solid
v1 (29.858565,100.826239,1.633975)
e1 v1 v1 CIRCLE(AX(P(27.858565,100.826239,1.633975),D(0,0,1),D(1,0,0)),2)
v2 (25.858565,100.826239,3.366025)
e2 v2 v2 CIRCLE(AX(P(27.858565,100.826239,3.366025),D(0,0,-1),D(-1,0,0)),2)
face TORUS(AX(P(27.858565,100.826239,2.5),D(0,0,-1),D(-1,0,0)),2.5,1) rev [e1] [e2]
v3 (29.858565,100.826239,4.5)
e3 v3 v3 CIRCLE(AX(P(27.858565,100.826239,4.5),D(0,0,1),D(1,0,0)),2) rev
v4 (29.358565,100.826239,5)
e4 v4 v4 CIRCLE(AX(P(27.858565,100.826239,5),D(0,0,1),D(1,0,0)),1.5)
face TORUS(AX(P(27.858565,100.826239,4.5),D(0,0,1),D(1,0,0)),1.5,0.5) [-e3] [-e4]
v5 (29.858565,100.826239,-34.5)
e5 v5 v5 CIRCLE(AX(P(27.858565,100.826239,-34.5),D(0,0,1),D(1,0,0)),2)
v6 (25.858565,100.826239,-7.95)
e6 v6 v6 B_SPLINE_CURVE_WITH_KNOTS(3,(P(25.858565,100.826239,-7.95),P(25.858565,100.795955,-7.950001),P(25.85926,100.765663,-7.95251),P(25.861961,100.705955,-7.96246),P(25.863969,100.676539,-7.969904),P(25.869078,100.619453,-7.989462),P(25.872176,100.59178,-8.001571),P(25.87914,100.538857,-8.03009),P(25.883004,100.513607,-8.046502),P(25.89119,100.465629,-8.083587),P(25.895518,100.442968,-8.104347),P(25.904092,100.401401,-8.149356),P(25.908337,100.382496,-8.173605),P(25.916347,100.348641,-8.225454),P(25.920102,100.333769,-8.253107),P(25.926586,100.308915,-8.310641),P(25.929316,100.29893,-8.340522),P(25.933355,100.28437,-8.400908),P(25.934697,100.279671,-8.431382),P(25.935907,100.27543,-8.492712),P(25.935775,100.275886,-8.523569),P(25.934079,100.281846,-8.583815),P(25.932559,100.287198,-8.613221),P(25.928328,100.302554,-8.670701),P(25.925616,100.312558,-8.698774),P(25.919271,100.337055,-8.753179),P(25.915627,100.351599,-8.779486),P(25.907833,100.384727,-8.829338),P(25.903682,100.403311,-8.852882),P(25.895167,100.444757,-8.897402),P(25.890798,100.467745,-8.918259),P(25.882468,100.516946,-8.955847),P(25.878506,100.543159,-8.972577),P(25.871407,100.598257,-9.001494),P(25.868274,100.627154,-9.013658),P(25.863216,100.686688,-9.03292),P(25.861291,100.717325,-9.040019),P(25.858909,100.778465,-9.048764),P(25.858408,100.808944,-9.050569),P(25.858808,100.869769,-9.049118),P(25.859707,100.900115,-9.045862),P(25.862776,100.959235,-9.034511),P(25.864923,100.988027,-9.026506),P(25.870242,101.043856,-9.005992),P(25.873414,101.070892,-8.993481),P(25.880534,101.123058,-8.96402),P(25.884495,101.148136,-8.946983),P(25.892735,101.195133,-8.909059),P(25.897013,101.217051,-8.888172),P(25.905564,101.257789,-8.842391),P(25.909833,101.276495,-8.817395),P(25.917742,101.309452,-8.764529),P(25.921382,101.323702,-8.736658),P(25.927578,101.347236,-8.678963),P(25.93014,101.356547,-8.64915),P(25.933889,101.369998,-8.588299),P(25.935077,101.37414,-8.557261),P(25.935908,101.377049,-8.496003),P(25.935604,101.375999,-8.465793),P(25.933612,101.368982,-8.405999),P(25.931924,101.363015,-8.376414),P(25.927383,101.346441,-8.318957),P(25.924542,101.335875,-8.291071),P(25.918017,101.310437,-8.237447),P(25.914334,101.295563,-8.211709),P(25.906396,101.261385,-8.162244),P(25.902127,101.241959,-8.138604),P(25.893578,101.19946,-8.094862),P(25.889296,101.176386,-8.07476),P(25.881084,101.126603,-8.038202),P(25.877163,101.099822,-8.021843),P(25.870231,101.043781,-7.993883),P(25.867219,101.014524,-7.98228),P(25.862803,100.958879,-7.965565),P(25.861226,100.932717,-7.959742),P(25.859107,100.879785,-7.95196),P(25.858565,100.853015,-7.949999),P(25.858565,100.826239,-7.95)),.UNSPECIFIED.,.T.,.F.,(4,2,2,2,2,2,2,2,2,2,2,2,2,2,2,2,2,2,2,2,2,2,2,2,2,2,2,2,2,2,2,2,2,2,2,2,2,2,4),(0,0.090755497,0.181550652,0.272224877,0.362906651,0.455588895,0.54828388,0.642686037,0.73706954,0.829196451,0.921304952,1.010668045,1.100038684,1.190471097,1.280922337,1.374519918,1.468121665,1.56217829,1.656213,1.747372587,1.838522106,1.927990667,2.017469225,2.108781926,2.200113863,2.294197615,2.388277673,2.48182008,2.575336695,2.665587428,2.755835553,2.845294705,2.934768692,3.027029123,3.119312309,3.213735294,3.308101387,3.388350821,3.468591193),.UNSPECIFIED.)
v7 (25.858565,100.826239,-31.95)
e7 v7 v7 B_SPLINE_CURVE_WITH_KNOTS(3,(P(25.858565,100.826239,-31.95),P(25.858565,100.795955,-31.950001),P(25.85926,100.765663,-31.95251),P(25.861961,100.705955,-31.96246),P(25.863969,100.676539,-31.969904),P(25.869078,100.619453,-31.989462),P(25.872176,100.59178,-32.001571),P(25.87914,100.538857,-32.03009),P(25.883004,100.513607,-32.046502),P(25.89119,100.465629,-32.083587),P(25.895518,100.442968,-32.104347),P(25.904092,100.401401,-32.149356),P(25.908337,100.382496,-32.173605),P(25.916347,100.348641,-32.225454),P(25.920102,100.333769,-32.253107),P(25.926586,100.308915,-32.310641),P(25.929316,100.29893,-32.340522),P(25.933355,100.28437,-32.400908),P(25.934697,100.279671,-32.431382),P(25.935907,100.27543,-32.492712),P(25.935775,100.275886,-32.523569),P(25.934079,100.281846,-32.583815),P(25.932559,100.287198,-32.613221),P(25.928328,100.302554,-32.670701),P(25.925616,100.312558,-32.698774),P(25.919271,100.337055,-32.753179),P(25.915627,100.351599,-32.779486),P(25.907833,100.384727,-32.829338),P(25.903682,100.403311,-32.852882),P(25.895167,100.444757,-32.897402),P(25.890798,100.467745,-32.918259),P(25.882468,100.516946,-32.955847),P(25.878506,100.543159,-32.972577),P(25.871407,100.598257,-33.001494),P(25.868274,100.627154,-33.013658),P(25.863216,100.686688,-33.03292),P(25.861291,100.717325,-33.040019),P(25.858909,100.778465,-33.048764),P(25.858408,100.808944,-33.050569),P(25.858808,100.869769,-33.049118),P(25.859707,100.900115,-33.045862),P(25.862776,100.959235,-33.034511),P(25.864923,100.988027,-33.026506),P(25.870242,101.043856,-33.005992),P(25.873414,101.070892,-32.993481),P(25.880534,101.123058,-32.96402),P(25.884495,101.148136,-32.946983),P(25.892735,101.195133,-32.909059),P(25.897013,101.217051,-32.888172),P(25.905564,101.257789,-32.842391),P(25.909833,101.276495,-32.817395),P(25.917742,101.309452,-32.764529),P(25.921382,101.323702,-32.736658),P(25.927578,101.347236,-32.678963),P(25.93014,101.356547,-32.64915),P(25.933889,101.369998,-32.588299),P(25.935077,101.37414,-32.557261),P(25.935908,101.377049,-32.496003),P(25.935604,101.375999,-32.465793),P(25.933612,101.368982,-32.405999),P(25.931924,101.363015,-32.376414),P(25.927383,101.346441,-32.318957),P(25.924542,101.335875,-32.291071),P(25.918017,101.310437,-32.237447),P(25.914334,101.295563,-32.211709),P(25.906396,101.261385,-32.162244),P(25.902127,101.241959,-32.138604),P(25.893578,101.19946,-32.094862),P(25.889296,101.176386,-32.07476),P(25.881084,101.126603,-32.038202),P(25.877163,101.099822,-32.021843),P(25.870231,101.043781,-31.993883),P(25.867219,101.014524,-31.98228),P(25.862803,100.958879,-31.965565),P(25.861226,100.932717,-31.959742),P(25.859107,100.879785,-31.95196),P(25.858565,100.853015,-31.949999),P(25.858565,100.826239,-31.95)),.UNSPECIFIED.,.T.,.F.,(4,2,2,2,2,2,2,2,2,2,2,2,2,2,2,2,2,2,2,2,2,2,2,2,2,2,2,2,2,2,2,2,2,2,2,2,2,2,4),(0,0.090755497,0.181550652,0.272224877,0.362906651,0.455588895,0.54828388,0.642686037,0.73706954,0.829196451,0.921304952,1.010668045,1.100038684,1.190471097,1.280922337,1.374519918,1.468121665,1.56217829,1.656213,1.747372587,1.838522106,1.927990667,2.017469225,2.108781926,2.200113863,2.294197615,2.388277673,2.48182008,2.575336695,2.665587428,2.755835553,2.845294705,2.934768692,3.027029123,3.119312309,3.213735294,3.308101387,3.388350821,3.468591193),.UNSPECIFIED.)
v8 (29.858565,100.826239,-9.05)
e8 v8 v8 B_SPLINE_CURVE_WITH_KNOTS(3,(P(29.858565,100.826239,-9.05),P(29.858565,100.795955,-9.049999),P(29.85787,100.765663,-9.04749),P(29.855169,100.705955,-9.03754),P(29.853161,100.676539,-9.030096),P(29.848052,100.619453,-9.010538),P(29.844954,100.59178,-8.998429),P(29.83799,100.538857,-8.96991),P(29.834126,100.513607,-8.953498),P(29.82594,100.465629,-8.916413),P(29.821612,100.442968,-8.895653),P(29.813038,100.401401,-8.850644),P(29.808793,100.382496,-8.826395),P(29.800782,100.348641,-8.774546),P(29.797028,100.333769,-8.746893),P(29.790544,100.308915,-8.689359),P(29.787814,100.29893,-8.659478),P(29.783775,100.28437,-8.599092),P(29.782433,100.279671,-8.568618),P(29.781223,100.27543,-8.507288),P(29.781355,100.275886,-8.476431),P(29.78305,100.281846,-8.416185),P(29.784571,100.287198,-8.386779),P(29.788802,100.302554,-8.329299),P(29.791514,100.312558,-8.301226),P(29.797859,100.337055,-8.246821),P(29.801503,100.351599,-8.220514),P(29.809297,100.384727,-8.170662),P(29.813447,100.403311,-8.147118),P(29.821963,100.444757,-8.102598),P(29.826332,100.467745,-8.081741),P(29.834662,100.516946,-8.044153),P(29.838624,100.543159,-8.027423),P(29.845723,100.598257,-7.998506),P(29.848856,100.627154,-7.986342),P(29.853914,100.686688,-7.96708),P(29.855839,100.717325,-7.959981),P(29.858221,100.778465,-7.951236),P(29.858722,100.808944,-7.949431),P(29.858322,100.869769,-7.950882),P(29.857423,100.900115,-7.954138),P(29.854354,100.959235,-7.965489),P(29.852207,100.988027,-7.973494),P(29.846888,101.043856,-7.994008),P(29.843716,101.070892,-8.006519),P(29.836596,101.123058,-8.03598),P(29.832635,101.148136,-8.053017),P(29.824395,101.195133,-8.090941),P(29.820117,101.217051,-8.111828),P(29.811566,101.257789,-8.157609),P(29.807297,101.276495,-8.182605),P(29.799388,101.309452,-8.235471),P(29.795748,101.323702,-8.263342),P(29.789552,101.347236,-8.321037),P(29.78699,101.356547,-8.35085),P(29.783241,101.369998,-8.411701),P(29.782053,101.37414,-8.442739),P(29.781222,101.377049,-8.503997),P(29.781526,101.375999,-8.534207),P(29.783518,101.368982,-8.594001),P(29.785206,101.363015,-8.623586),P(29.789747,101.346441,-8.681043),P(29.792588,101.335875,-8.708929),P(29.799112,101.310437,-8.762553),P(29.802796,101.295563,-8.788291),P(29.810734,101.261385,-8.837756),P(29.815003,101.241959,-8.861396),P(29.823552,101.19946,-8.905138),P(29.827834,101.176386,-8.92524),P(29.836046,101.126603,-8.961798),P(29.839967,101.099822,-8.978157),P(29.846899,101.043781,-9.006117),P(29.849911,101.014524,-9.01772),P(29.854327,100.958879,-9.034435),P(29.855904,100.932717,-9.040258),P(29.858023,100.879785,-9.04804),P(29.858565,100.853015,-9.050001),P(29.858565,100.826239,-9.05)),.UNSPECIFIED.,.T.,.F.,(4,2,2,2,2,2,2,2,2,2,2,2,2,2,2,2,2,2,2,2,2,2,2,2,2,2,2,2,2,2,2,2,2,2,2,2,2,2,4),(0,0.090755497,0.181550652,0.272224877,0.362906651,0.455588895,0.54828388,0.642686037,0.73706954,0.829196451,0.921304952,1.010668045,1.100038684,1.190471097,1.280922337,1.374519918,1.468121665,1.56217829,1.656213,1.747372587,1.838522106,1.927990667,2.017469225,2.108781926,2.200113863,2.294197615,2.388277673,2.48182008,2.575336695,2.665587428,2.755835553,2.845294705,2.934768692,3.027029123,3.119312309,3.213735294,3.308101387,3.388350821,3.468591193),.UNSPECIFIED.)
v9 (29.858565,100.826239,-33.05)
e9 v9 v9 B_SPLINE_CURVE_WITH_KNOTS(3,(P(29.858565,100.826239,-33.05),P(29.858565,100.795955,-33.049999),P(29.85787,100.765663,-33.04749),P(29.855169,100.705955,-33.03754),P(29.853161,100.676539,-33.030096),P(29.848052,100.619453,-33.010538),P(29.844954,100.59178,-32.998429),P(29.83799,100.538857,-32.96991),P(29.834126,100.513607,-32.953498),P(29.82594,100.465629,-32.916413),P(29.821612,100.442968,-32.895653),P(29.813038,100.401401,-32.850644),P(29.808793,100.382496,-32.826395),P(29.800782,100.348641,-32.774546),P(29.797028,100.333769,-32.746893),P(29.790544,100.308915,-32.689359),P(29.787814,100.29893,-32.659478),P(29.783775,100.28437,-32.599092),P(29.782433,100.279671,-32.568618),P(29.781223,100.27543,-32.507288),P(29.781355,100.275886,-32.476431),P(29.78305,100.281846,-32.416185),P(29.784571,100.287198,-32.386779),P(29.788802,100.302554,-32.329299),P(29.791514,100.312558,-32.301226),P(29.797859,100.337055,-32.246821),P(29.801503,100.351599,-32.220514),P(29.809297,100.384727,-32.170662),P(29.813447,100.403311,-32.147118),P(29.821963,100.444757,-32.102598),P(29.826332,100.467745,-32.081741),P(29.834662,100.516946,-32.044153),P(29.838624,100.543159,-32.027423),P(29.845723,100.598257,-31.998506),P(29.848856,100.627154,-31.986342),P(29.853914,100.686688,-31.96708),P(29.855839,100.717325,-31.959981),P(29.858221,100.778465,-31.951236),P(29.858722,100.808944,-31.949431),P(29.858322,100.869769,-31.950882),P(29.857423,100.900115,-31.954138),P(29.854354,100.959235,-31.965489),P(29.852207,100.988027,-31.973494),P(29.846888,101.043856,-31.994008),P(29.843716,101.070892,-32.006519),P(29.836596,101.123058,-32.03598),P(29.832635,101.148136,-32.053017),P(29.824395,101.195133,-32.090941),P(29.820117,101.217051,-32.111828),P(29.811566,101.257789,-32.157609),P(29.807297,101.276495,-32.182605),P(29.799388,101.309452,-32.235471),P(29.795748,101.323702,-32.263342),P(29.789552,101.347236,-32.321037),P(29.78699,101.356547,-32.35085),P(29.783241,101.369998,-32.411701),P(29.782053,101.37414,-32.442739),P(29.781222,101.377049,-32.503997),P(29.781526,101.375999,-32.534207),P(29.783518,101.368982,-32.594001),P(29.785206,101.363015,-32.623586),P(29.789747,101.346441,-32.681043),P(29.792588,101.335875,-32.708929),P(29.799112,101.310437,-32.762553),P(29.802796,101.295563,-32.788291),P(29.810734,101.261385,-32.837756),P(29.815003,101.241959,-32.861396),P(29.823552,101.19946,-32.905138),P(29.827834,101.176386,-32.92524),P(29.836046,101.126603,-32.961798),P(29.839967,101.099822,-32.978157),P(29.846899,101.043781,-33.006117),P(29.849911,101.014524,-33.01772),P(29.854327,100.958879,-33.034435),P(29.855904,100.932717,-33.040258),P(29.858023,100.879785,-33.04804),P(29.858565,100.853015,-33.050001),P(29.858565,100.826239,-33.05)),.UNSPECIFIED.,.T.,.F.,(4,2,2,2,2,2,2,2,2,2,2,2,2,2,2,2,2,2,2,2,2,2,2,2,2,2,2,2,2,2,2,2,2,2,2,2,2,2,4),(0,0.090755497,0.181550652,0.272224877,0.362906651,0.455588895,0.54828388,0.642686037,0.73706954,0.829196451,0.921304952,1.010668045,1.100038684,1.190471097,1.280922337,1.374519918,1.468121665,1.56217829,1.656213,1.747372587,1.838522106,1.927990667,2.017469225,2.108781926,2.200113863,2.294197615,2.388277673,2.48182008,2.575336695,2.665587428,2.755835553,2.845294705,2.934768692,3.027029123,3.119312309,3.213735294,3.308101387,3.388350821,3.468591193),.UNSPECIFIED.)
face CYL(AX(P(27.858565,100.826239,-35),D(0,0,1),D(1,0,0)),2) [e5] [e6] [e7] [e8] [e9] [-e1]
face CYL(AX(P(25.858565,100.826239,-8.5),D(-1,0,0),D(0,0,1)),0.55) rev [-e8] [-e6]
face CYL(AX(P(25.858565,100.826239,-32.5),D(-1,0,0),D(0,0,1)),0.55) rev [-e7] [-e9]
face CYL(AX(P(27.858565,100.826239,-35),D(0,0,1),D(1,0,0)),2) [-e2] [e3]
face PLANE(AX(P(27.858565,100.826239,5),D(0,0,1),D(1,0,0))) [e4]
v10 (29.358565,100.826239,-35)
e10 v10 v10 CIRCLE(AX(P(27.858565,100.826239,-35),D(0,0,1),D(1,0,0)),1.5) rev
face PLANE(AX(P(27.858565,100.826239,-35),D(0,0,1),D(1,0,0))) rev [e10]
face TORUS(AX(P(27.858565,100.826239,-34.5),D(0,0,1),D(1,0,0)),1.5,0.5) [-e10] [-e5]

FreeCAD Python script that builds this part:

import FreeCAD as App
import Part
import Sketcher
from FreeCAD import Vector
Q = App.Units.Quantity


def edges_at(feature, points):
    """Names of the edges that pass closest to the given points."""
    edges = feature.Shape.Edges
    near = lambda p: min(range(len(edges)), key=lambda i: edges[i].distToShape(Part.Vertex(*p))[0])
    return sorted({f"Edge{near(p) + 1}" for p in points})

doc = App.newDocument("Part")
body = doc.addObject("PartDesign::Body", "Body")

# Sketch on XY plane
sketch1 = doc.addObject("Sketcher::SketchObject", "Sketch")
body.addObject(sketch1)
sketch1.AttachmentSupport = (doc.XY_Plane, [""])
sketch1.MapMode = "FlatFace"
sketch1.addGeometry(Part.Circle(Vector(27.9, 100.8, 0), Vector(0, 0, 1), 2), False)
sketch1.addConstraint(Sketcher.Constraint("Diameter", 0, Q("4 mm")))
sketch1.addConstraint(Sketcher.Constraint("DistanceY", -1, 1, 0, 3, Q("100.826239 mm")))
sketch1.addConstraint(Sketcher.Constraint("DistanceX", -1, 1, 0, 3, Q("27.858565 mm")))
pad1 = doc.addObject("PartDesign::Pad", "Pad")
body.addObject(pad1)
pad1.Profile = sketch1
pad1.Length = 35
pad1.Reversed = True

# Sketch on XY plane
sketch2 = doc.addObject("Sketcher::SketchObject", "Sketch001")
body.addObject(sketch2)
sketch2.AttachmentSupport = (doc.XY_Plane, [""])
sketch2.MapMode = "FlatFace"
sketch2.addGeometry(Part.Circle(Vector(27.9, 100.8, 0), Vector(0, 0, 1), 2), False)
sketch2.addConstraint(Sketcher.Constraint("Diameter", 0, Q("4 mm")))
sketch2.addConstraint(Sketcher.Constraint("DistanceY", -1, 1, 0, 3, Q("100.826239 mm")))
sketch2.addConstraint(Sketcher.Constraint("DistanceX", -1, 1, 0, 3, Q("27.858565 mm")))
pad2 = doc.addObject("PartDesign::Pad", "Pad001")
body.addObject(pad2)
pad2.Profile = sketch2
pad2.Length = 5

# Sketch on YZ plane
sketch3 = doc.addObject("Sketcher::SketchObject", "Sketch002")
body.addObject(sketch3)
sketch3.AttachmentSupport = (doc.YZ_Plane, [""])
sketch3.MapMode = "FlatFace"
sketch3.AttachmentOffset = App.Placement(Vector(0, 0, 27.858565), App.Rotation())
sketch3.addGeometry(Part.Circle(Vector(103.3, 2.5, 0), Vector(0, 0, 1), 1), False)
sketch3.addGeometry(Part.LineSegment(Vector(100.8, 2.5, 0), Vector(100.8, 12.5, 0)), True)  # axis
sketch3.addConstraint(Sketcher.Constraint("Vertical", 1))
sketch3.addConstraint(Sketcher.Constraint("Horizontal", 0, 3, 1, 1))
sketch3.addConstraint(Sketcher.Constraint("Diameter", 0, Q("2 mm")))
sketch3.addConstraint(Sketcher.Constraint("DistanceY", 1, 1, 1, 2, Q("10 mm")))
sketch3.addConstraint(Sketcher.Constraint("DistanceY", -1, 1, 0, 3, Q("2.5 mm")))
sketch3.addConstraint(Sketcher.Constraint("DistanceX", 1, 1, 0, 3, Q("2.5 mm")))
sketch3.addConstraint(Sketcher.Constraint("DistanceX", -1, 1, 0, 3, Q("103.326239 mm")))
groove = doc.addObject("PartDesign::Groove", "Groove")
body.addObject(groove)
groove.Profile = sketch3
groove.ReferenceAxis = (sketch3, ["Axis0"])
groove.Angle = 360
doc.recompute()

fillet = doc.addObject("PartDesign::Fillet", "Fillet")
body.addObject(fillet)
fillet.Base = (groove, edges_at(groove, [(25.859, 100.826, -35), (25.859, 100.826, 5)]))
fillet.Radius = 0.5

# Sketch on YZ plane
sketch4 = doc.addObject("Sketcher::SketchObject", "Sketch003")
body.addObject(sketch4)
sketch4.AttachmentSupport = (doc.YZ_Plane, [""])
sketch4.MapMode = "FlatFace"
sketch4.addGeometry(Part.Circle(Vector(100.8, -32.5, 0), Vector(0, 0, 1), 0.6), False)
sketch4.addGeometry(Part.Circle(Vector(100.8, -8.5, 0), Vector(0, 0, 1), 0.6), False)
sketch4.addConstraint(Sketcher.Constraint("Equal", 0, 1))
sketch4.addConstraint(Sketcher.Constraint("Vertical", 0, 3, 1, 3))
sketch4.addConstraint(Sketcher.Constraint("Diameter", 0, Q("1.1 mm")))
sketch4.addConstraint(Sketcher.Constraint("DistanceY", 0, 3, 1, 3, Q("24 mm")))
sketch4.addConstraint(Sketcher.Constraint("DistanceY", 0, 3, -1, 1, Q("32.5 mm")))
sketch4.addConstraint(Sketcher.Constraint("DistanceX", -1, 1, 0, 3, Q("100.826239 mm")))
pocket1 = doc.addObject("PartDesign::Pocket", "Pocket")
body.addObject(pocket1)
pocket1.Profile = sketch4
pocket1.Type = "ThroughAll"
pocket1.Midplane = True

doc.recompute()
